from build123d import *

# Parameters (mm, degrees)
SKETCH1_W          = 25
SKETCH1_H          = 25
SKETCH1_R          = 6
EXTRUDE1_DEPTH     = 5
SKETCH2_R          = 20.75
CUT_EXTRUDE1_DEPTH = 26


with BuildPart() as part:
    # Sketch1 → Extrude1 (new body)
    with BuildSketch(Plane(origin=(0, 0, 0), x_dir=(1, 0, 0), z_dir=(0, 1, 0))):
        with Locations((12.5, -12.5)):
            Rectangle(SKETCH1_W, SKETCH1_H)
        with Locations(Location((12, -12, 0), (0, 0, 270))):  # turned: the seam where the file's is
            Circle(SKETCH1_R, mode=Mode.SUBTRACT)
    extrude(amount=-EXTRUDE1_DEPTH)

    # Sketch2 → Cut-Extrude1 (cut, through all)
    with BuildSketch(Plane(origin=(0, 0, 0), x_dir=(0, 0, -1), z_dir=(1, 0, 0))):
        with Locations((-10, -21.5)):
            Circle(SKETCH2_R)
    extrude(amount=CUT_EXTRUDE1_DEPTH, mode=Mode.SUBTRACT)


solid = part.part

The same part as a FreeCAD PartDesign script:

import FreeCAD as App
import Part
import Sketcher
Q = App.Units.Quantity

doc = App.newDocument("Part")
body = doc.addObject("PartDesign::Body", "Body")

# Sketch on XZ plane
sketch1 = body.newObject("Sketcher::SketchObject", "Sketch")
sketch1.AttachmentSupport = (doc.getObject("XZ_Plane"), [""])
sketch1.MapMode = "FlatFace"
sketch1.addGeometry(Part.LineSegment(App.Vector(0, 0, 0), App.Vector(0, 25, 0)), False)
sketch1.addGeometry(Part.LineSegment(App.Vector(0, 25, 0), App.Vector(25, 25, 0)), False)
sketch1.addGeometry(Part.LineSegment(App.Vector(25, 25, 0), App.Vector(25, 0, 0)), False)
sketch1.addGeometry(Part.LineSegment(App.Vector(25, 0, 0), App.Vector(0, 0, 0)), False)
sketch1.addGeometry(Part.Circle(App.Vector(12, 12, 0), App.Vector(0, 0, 1), 6), False)
sketch1.addConstraint(Sketcher.Constraint("Coincident", 0, 2, 1, 1))
sketch1.addConstraint(Sketcher.Constraint("Coincident", 1, 2, 2, 1))
sketch1.addConstraint(Sketcher.Constraint("Coincident", 2, 2, 3, 1))
sketch1.addConstraint(Sketcher.Constraint("Coincident", 3, 2, 0, 1))
sketch1.addConstraint(Sketcher.Constraint("Vertical", 0))
sketch1.addConstraint(Sketcher.Constraint("Horizontal", 1))
sketch1.addConstraint(Sketcher.Constraint("Vertical", 2))
sketch1.addConstraint(Sketcher.Constraint("Horizontal", 3))
sketch1.addConstraint(Sketcher.Constraint("Coincident", 3, 2, -1, 1))
sketch1.addConstraint(Sketcher.Constraint("Equal", 3, 0))
sketch1.addConstraint(Sketcher.Constraint("Diameter", 4, Q("12 mm")))
sketch1.addConstraint(Sketcher.Constraint("DistanceX", 1, 1, 1, 2, Q("25 mm")))
sketch1.addConstraint(Sketcher.Constraint("DistanceX", -1, 1, 4, 3, Q("12 mm")))
sketch1.addConstraint(Sketcher.Constraint("DistanceY", -1, 1, 4, 3, Q("12 mm")))
pad1 = body.newObject("PartDesign::Pad", "Pad")
pad1.Profile = sketch1
pad1.Length = 5

# Sketch on YZ plane
sketch2 = body.newObject("Sketcher::SketchObject", "Sketch001")
sketch2.AttachmentSupport = (doc.getObject("YZ_Plane"), [""])
sketch2.MapMode = "FlatFace"
sketch2.addGeometry(Part.Circle(App.Vector(-22, 10, 0), App.Vector(0, 0, 1), 21), False)
sketch2.addConstraint(Sketcher.Constraint("Diameter", 0, Q("41.5 mm")))
sketch2.addConstraint(Sketcher.Constraint("DistanceY", -1, 1, 0, 3, Q("10 mm")))
sketch2.addConstraint(Sketcher.Constraint("DistanceX", 0, 3, -1, 1, Q("21.5 mm")))
pocket1 = body.newObject("PartDesign::Pocket", "Pocket")
pocket1.Profile = sketch2
pocket1.Type = "ThroughAll"
pocket1.Reversed = True

doc.recompute()
